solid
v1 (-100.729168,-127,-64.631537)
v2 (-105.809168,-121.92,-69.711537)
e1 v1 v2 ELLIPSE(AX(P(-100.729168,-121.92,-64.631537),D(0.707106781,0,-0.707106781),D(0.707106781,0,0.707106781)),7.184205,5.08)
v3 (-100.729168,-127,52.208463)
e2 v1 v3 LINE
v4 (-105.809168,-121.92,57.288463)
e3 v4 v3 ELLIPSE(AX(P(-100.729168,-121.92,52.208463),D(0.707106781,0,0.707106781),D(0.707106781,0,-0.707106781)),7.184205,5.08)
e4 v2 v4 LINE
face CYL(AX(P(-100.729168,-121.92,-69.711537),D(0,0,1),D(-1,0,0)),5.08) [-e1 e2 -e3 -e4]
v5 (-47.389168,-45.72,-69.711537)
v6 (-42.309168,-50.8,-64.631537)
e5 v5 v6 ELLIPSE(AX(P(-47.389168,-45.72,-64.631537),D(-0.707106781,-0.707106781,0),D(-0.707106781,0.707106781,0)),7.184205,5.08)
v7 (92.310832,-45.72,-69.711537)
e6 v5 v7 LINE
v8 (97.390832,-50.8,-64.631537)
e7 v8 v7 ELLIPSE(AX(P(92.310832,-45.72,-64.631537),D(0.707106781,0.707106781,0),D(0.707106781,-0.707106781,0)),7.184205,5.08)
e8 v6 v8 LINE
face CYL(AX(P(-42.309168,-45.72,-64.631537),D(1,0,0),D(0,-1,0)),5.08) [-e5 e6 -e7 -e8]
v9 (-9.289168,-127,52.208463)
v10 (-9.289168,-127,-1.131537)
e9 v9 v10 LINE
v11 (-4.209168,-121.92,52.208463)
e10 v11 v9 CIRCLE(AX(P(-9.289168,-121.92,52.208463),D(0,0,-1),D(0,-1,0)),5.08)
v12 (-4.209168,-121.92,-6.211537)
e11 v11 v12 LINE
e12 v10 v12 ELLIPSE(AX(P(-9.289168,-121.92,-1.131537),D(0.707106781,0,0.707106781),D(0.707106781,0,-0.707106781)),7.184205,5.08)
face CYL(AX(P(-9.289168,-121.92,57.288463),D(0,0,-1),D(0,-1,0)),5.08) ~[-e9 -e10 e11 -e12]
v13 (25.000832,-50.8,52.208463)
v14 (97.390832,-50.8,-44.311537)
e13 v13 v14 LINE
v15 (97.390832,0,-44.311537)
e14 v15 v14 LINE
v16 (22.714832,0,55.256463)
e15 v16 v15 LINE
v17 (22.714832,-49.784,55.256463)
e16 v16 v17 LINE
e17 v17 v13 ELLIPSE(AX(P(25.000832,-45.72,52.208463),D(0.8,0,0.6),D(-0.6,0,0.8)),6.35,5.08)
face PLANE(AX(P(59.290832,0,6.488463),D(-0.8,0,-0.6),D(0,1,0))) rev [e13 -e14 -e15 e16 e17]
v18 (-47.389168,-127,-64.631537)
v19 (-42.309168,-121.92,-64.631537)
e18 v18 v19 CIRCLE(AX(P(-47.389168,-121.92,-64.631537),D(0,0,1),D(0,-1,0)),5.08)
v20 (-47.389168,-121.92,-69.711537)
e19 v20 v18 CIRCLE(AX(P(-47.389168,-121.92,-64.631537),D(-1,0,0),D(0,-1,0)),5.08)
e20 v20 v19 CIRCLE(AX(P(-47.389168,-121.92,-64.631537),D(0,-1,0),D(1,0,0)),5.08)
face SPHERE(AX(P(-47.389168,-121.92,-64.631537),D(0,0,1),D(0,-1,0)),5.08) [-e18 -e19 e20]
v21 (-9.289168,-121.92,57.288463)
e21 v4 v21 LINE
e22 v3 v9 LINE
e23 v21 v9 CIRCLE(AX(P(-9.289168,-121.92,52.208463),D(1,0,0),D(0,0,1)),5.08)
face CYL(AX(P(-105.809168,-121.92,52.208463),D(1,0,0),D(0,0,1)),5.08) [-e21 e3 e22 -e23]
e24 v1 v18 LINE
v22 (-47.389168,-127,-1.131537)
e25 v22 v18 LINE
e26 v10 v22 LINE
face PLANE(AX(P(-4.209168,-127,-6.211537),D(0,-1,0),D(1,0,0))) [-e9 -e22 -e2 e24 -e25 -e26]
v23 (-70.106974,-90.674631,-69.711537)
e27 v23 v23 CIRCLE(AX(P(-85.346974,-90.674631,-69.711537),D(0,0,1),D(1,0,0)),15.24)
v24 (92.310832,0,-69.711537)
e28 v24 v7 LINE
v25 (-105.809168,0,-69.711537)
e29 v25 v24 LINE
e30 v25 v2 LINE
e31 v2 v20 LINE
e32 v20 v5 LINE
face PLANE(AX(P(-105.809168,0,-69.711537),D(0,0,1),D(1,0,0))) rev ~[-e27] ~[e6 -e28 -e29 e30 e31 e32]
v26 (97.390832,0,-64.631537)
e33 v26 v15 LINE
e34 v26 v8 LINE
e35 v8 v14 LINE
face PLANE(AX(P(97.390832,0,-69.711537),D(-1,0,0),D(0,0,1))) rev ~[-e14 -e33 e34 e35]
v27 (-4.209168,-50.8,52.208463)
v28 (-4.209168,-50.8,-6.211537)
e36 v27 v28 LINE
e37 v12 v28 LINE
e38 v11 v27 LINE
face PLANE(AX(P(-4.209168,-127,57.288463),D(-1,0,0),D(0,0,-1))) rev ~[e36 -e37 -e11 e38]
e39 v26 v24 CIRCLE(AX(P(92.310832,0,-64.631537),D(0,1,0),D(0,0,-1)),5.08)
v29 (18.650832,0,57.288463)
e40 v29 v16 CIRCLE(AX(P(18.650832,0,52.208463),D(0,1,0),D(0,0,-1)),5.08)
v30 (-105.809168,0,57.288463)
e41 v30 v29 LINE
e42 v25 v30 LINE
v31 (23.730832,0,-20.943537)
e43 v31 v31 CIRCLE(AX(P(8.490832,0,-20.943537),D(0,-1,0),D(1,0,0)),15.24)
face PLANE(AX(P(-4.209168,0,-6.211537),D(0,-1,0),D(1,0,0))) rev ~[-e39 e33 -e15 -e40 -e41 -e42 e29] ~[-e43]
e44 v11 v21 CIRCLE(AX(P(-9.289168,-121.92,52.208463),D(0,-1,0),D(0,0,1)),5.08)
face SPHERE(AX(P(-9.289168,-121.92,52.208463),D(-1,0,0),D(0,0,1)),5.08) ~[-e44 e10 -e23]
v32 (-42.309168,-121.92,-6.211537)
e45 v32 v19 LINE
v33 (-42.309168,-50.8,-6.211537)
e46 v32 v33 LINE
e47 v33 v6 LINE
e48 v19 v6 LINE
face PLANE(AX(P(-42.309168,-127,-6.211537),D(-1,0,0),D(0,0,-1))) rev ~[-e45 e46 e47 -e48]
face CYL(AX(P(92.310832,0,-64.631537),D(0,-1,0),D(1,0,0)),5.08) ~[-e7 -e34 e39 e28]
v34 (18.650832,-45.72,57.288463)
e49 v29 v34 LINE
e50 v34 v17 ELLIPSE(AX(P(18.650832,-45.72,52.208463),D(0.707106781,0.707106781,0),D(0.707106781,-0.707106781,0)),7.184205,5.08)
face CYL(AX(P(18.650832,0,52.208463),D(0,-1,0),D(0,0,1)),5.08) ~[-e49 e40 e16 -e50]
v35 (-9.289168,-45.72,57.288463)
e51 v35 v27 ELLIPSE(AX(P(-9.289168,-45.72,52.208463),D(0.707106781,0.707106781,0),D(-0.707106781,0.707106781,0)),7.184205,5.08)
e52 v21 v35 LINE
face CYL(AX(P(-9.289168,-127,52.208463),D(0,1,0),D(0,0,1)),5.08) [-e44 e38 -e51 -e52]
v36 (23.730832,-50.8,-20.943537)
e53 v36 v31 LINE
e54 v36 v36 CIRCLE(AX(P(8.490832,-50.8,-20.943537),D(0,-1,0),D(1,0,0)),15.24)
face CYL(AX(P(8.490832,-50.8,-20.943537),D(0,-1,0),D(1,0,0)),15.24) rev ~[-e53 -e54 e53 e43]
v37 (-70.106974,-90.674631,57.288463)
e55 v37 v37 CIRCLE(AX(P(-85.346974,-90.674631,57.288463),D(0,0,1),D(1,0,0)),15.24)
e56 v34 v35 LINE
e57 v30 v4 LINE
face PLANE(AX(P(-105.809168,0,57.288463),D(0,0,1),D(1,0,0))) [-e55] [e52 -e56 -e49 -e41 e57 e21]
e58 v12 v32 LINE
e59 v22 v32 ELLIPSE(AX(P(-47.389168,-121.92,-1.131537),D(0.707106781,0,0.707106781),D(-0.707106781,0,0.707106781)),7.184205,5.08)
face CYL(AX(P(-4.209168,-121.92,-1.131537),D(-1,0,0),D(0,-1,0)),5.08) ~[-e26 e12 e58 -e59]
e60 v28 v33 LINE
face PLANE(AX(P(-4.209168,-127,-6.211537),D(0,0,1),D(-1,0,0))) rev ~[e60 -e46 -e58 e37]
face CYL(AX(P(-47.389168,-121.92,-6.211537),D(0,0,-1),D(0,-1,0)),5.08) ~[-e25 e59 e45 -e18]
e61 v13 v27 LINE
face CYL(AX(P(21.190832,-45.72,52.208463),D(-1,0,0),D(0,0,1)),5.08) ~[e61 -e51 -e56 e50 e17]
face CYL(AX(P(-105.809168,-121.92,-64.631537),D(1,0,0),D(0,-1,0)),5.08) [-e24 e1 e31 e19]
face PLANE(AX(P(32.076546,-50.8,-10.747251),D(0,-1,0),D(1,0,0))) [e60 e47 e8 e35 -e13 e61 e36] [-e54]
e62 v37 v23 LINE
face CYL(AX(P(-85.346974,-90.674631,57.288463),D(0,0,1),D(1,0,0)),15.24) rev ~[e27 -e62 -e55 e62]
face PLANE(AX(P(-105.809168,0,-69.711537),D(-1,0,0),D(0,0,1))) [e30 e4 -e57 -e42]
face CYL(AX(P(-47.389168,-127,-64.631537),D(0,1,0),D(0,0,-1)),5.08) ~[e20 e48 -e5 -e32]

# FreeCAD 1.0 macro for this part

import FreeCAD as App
import Part
import Sketcher
from FreeCAD import Vector
Q = App.Units.Quantity


def edges_at(feature, points):
    """Names of the edges that pass closest to the given points."""
    edges = feature.Shape.Edges
    near = lambda p: min(range(len(edges)), key=lambda i: edges[i].distToShape(Part.Vertex(*p))[0])
    return sorted({f"Edge{near(p) + 1}" for p in points})

doc = App.newDocument("Part")
body = doc.addObject("PartDesign::Body", "Body")

# Sketch on XZ plane
sketch1 = doc.addObject("Sketcher::SketchObject", "Sketch")
body.addObject(sketch1)
sketch1.AttachmentSupport = (doc.XZ_Plane, [""])
sketch1.MapMode = "FlatFace"
sketch1.addGeometry([
    Part.LineSegment(Vector(-106, 57, 0), Vector(-106, -70, 0)),
    Part.LineSegment(Vector(-106, -70, 0), Vector(97, -70, 0)),
    Part.LineSegment(Vector(97, -70, 0), Vector(97, 57, 0)),
    Part.LineSegment(Vector(97, 57, 0), Vector(-106, 57, 0)),
], False)
sketch1.addConstraint([
    Sketcher.Constraint("Coincident", 0, 2, 1, 1),
    Sketcher.Constraint("Coincident", 1, 2, 2, 1),
    Sketcher.Constraint("Coincident", 2, 2, 3, 1),
    Sketcher.Constraint("Coincident", 3, 2, 0, 1),
    Sketcher.Constraint("Vertical", 0),
    Sketcher.Constraint("Horizontal", 1),
    Sketcher.Constraint("Vertical", 2),
    Sketcher.Constraint("Horizontal", 3),
    Sketcher.Constraint("DistanceX", 1, 1, 1, 2, Q("8 in")),
    Sketcher.Constraint("DistanceY", 0, 2, 0, 1, Q("5 in")),
    Sketcher.Constraint("DistanceX", 0, 2, -1, 1, Q("105.809168 mm")),
    Sketcher.Constraint("DistanceY", 0, 2, -1, 1, Q("69.711537 mm")),
])
pad1 = doc.addObject("PartDesign::Pad", "Pad")
body.addObject(pad1)
pad1.Profile = sketch1
pad1.Length = Q("5 in")

# Sketch on XZ plane
sketch2 = doc.addObject("Sketcher::SketchObject", "Sketch001")
body.addObject(sketch2)
sketch2.AttachmentSupport = (doc.XZ_Plane, [""])
sketch2.MapMode = "FlatFace"
sketch2.AttachmentOffset = App.Placement(Vector(0, 0, 5 * 25.4), App.Rotation())
sketch2.addGeometry([
    Part.LineSegment(Vector(97, 57, 0), Vector(-4, 57, 0)),  # 0
    Part.LineSegment(Vector(-4, 57, 0), Vector(-4, -6, 0)),  # 1
    Part.LineSegment(Vector(-4, -6, 0), Vector(-42, -6, 0)),  # 2
    Part.LineSegment(Vector(-42, -6, 0), Vector(-42, -70, 0)),  # 3
    Part.LineSegment(Vector(-42, -70, 0), Vector(97, -70, 0)),  # 4
    Part.LineSegment(Vector(97, -70, 0), Vector(97, 57, 0)),  # 5
], False)
sketch2.addConstraint([
    Sketcher.Constraint("Coincident", 0, 2, 1, 1),
    Sketcher.Constraint("Coincident", 1, 2, 2, 1),
    Sketcher.Constraint("Coincident", 2, 2, 3, 1),
    Sketcher.Constraint("Coincident", 3, 2, 4, 1),
    Sketcher.Constraint("Coincident", 4, 2, 5, 1),
    Sketcher.Constraint("Coincident", 5, 2, 0, 1),
    Sketcher.Constraint("Horizontal", 0),
    Sketcher.Constraint("Vertical", 1),
    Sketcher.Constraint("Horizontal", 2),
    Sketcher.Constraint("Vertical", 3),
    Sketcher.Constraint("Horizontal", 4),
    Sketcher.Constraint("Vertical", 5),
    Sketcher.Constraint("Equal", 1, 3),
    Sketcher.Constraint("DistanceX", 0, 2, 0, 1, Q("4 in")),
    Sketcher.Constraint("DistanceY", 5, 1, 5, 2, Q("5 in")),
    Sketcher.Constraint("DistanceX", 2, 2, 2, 1, Q("1.5 in")),
    Sketcher.Constraint("DistanceX", 0, 2, -1, 1, Q("4.209168 mm")),
    Sketcher.Constraint("DistanceY", -1, 1, 0, 2, Q("57.288463 mm")),
])
pocket1 = doc.addObject("PartDesign::Pocket", "Pocket")
body.addObject(pocket1)
pocket1.Profile = sketch2
pocket1.Length = Q("3 in")
doc.recompute()

chamfer = doc.addObject("PartDesign::Chamfer", "Chamfer")
body.addObject(chamfer)
chamfer.Base = (pocket1, edges_at(pocket1, [(97.391, -25.4, 57.288)]))
chamfer.ChamferType = "Two distances"
chamfer.Size = Q("3 in")
chamfer.Size2 = Q("4 in")
doc.recompute()

fillet = doc.addObject("PartDesign::Fillet", "Fillet")
body.addObject(fillet)
fillet.Base = (chamfer, edges_at(chamfer, [
    (-55.009, -127, 57.288),
    (-4.209, -88.9, 57.288),
    (8.491, -50.8, 57.288),
    (21.191, -25.4, 57.288),
    (-4.209, -127, 25.538),
    (-23.259, -127, -6.212),
    (-42.309, -127, -37.962),
    (-74.059, -127, -69.712),
    (-105.809, -127, -6.212),
    (-42.309, -88.9, -69.712),
    (27.541, -50.8, -69.712),
    (97.391, -25.4, -69.712),
]))
fillet.Radius = Q("0.2 in")

# Sketch on XZ plane
sketch3 = doc.addObject("Sketcher::SketchObject", "Sketch002")
body.addObject(sketch3)
sketch3.AttachmentSupport = (doc.XZ_Plane, [""])
sketch3.MapMode = "FlatFace"
sketch3.AttachmentOffset = App.Placement(Vector(0, 0, 2 * 25.4), App.Rotation())
sketch3.addGeometry(Part.Circle(Vector(8, -21, 0), Vector(0, 0, 1), 15), False)
sketch3.addConstraint([
    Sketcher.Constraint("Diameter", 0, Q("1.2 in")),
    Sketcher.Constraint("DistanceX", -1, 1, 0, 3, Q("8.490832 mm")),
    Sketcher.Constraint("DistanceY", 0, 3, -1, 1, Q("20.943537 mm")),
])
pocket2 = doc.addObject("PartDesign::Pocket", "Pocket001")
body.addObject(pocket2)
pocket2.Profile = sketch3
pocket2.Length = Q("2 in")

# Sketch on XY plane
sketch4 = doc.addObject("Sketcher::SketchObject", "Sketch003")
body.addObject(sketch4)
sketch4.AttachmentSupport = (doc.XY_Plane, [""])
sketch4.MapMode = "FlatFace"
sketch4.AttachmentOffset = App.Placement(Vector(0, 0, 57.288463), App.Rotation())
sketch4.addGeometry(Part.Circle(Vector(-85, -91, 0), Vector(0, 0, 1), 15), False)
sketch4.addConstraint([
    Sketcher.Constraint("Diameter", 0, Q("1.2 in")),
    Sketcher.Constraint("DistanceY", 0, 3, -1, 1, Q("90.674631 mm")),
    Sketcher.Constraint("DistanceX", 0, 3, -1, 1, Q("85.346974 mm")),
])
pocket3 = doc.addObject("PartDesign::Pocket", "Pocket002")
body.addObject(pocket3)
pocket3.Profile = sketch4
pocket3.Type = "ThroughAll"

doc.recompute()
